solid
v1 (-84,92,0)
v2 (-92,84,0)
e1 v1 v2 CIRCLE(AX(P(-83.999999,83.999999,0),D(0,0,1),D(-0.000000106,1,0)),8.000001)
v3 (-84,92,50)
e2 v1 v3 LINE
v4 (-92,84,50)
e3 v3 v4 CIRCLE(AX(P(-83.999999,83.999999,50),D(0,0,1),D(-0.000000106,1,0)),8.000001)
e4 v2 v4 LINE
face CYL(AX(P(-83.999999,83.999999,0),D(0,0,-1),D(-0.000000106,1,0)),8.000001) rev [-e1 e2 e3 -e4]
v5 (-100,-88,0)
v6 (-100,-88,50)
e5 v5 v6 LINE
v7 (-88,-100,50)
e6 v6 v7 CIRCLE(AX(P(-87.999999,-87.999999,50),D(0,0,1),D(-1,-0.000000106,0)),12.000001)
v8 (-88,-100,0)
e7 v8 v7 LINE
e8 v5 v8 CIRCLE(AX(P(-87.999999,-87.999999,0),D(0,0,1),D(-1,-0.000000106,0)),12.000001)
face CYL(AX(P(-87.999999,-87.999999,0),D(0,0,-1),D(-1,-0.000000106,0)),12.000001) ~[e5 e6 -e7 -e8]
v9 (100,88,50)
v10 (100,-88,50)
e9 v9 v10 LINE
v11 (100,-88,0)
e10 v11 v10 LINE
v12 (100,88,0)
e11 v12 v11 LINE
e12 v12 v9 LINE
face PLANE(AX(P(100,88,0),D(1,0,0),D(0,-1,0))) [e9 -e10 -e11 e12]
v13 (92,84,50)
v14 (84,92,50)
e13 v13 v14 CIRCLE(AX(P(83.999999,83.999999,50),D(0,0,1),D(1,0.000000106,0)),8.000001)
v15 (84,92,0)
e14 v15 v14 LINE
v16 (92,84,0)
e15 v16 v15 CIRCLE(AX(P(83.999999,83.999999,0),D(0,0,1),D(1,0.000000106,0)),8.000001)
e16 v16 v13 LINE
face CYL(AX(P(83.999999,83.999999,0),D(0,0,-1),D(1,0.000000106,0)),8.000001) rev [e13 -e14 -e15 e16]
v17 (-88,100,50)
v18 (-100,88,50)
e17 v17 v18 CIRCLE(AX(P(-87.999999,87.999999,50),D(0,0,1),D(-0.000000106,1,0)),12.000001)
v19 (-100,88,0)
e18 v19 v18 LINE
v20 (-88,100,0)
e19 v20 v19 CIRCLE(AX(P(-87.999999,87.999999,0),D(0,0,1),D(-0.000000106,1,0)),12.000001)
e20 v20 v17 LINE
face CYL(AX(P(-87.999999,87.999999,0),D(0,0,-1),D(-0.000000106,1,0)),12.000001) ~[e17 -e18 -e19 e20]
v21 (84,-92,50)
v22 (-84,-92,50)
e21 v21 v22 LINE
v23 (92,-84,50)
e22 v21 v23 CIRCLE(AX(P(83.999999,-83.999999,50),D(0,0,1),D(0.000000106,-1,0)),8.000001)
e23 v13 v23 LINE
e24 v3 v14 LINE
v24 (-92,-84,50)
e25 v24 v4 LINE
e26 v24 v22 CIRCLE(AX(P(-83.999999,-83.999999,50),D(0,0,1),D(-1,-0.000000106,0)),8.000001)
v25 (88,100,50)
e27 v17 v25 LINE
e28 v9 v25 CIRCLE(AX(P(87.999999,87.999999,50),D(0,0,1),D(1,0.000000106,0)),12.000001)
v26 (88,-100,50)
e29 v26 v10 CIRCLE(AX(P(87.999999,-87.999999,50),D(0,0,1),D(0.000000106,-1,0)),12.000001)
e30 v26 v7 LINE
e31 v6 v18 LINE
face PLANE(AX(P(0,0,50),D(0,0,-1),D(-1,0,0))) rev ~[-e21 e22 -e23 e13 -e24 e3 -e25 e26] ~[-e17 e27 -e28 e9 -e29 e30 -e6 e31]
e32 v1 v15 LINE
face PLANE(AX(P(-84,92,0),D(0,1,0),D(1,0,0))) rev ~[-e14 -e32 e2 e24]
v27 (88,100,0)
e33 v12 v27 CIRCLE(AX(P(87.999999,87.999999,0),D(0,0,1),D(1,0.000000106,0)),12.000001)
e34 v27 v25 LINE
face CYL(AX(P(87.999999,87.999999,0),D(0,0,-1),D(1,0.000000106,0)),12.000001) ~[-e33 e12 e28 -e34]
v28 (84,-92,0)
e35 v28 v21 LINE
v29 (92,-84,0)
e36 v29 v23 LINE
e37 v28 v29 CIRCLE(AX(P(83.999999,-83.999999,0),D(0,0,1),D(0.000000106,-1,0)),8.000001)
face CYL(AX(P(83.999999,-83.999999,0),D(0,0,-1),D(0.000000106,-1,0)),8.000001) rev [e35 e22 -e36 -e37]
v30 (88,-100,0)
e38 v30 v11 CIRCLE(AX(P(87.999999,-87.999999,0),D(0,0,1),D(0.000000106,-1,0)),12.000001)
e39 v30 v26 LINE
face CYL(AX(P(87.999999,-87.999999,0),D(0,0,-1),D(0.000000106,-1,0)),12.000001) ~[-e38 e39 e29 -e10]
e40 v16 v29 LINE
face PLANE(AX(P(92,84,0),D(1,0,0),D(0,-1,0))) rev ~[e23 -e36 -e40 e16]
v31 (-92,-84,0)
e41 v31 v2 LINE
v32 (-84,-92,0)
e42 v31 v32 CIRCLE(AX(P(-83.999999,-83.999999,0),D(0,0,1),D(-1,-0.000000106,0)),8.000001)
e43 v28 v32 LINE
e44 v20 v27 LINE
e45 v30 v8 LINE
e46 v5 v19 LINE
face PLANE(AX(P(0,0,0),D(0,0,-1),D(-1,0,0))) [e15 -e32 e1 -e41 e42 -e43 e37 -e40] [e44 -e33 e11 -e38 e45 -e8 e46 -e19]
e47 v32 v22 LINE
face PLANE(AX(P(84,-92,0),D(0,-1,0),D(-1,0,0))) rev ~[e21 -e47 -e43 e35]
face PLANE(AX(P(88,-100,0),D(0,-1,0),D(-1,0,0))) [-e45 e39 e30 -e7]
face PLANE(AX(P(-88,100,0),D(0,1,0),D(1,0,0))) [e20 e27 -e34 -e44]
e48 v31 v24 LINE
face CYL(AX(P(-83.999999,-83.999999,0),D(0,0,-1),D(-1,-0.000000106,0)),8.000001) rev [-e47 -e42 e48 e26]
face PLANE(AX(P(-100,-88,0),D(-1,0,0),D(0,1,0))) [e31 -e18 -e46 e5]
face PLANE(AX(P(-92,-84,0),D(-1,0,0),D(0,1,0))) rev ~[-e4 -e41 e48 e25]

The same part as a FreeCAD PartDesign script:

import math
import FreeCAD as App
import Part
import Sketcher

V = App.Vector
Q = App.Units.Quantity

doc = App.newDocument("Part")
body = doc.addObject("PartDesign::Body", "Body")

# Sketch on XY plane
sketch1 = doc.addObject("Sketcher::SketchObject", "Sketch")
body.addObject(sketch1)
sketch1.AttachmentSupport = (doc.XY_Plane, [""])
sketch1.MapMode = "FlatFace"
sketch1.addGeometry([
    Part.LineSegment(V(88, 100, 0), V(-88, 100, 0)),  # 0
    Part.ArcOfCircle(Part.Circle(V(-88, 88, 0), V(0, 0, 1), 12), math.radians(90), math.radians(180)),  # 1
    Part.LineSegment(V(-100, 88, 0), V(-100, -88, 0)),  # 2
    Part.ArcOfCircle(Part.Circle(V(-88, -88, 0), V(0, 0, 1), 12), math.radians(-180), math.radians(-90)),  # 3
    Part.LineSegment(V(-88, -100, 0), V(88, -100, 0)),  # 4
    Part.ArcOfCircle(Part.Circle(V(88, -88, 0), V(0, 0, 1), 12), math.radians(-90), math.radians(0)),  # 5
    Part.LineSegment(V(100, -88, 0), V(100, 88, 0)),  # 6
    Part.ArcOfCircle(Part.Circle(V(88, 88, 0), V(0, 0, 1), 12), math.radians(0), math.radians(90)),  # 7
    Part.LineSegment(V(-84, 92, 0), V(84, 92, 0)),  # 8
    Part.ArcOfCircle(Part.Circle(V(84, 84, 0), V(0, 0, 1), 8), math.radians(0), math.radians(90)),  # 9
    Part.LineSegment(V(92, 84, 0), V(92, -84, 0)),  # 10
    Part.ArcOfCircle(Part.Circle(V(84, -84, 0), V(0, 0, 1), 8), math.radians(-90), math.radians(0)),  # 11
    Part.LineSegment(V(84, -92, 0), V(-84, -92, 0)),  # 12
    Part.ArcOfCircle(Part.Circle(V(-84, -84, 0), V(0, 0, 1), 8), math.radians(-180), math.radians(-90)),  # 13
    Part.LineSegment(V(-92, -84, 0), V(-92, 84, 0)),  # 14
    Part.ArcOfCircle(Part.Circle(V(-84, 84, 0), V(0, 0, 1), 8), math.radians(90), math.radians(180)),  # 15
], False)
sketch1.addConstraint([
    Sketcher.Constraint("Tangent", 0, 2, 1, 1),
    Sketcher.Constraint("Tangent", 1, 2, 2, 1),
    Sketcher.Constraint("Tangent", 2, 2, 3, 1),
    Sketcher.Constraint("Tangent", 3, 2, 4, 1),
    Sketcher.Constraint("Tangent", 4, 2, 5, 1),
    Sketcher.Constraint("Tangent", 5, 2, 6, 1),
    Sketcher.Constraint("Tangent", 6, 2, 7, 1),
    Sketcher.Constraint("Tangent", 7, 2, 0, 1),
    Sketcher.Constraint("Tangent", 8, 2, 9, 2),
    Sketcher.Constraint("Tangent", 9, 1, 10, 1),
    Sketcher.Constraint("Tangent", 10, 2, 11, 2),
    Sketcher.Constraint("Tangent", 11, 1, 12, 1),
    Sketcher.Constraint("Tangent", 12, 2, 13, 2),
    Sketcher.Constraint("Tangent", 13, 1, 14, 1),
    Sketcher.Constraint("Tangent", 14, 2, 15, 2),
    Sketcher.Constraint("Tangent", 15, 1, 8, 1),
    Sketcher.Constraint("Horizontal", 0),
    Sketcher.Constraint("Vertical", 2),
    Sketcher.Constraint("Horizontal", 4),
    Sketcher.Constraint("Vertical", 6),
    Sketcher.Constraint("Horizontal", 8),
    Sketcher.Constraint("Vertical", 10),
    Sketcher.Constraint("Horizontal", 12),
    Sketcher.Constraint("Vertical", 14),
    Sketcher.Constraint("Equal", 1, 3),
    Sketcher.Constraint("Equal", 3, 5),
    Sketcher.Constraint("Equal", 5, 7),
    Sketcher.Constraint("Equal", 9, 11),
    Sketcher.Constraint("Equal", 11, 13),
    Sketcher.Constraint("Equal", 13, 15),
    Sketcher.Constraint("Symmetric", 1, 3, 5, 3, -1, 1),
    Sketcher.Constraint("Symmetric", 9, 3, 13, 3, -1, 1),
    Sketcher.Constraint("Equal", 4, 2),
    Sketcher.Constraint("Equal", 12, 10),
    Sketcher.Constraint("Radius", 1, Q("12.000001 mm")),
    Sketcher.Constraint("Radius", 9, Q("8.000001 mm")),
    Sketcher.Constraint("DistanceX", 0, 2, 0, 1, Q("176 mm")),
    Sketcher.Constraint("DistanceX", 8, 1, 8, 2, Q("168 mm")),
])
pad1 = doc.addObject("PartDesign::Pad", "Pad")
body.addObject(pad1)
pad1.Profile = sketch1
pad1.Length = 50

doc.recompute()
